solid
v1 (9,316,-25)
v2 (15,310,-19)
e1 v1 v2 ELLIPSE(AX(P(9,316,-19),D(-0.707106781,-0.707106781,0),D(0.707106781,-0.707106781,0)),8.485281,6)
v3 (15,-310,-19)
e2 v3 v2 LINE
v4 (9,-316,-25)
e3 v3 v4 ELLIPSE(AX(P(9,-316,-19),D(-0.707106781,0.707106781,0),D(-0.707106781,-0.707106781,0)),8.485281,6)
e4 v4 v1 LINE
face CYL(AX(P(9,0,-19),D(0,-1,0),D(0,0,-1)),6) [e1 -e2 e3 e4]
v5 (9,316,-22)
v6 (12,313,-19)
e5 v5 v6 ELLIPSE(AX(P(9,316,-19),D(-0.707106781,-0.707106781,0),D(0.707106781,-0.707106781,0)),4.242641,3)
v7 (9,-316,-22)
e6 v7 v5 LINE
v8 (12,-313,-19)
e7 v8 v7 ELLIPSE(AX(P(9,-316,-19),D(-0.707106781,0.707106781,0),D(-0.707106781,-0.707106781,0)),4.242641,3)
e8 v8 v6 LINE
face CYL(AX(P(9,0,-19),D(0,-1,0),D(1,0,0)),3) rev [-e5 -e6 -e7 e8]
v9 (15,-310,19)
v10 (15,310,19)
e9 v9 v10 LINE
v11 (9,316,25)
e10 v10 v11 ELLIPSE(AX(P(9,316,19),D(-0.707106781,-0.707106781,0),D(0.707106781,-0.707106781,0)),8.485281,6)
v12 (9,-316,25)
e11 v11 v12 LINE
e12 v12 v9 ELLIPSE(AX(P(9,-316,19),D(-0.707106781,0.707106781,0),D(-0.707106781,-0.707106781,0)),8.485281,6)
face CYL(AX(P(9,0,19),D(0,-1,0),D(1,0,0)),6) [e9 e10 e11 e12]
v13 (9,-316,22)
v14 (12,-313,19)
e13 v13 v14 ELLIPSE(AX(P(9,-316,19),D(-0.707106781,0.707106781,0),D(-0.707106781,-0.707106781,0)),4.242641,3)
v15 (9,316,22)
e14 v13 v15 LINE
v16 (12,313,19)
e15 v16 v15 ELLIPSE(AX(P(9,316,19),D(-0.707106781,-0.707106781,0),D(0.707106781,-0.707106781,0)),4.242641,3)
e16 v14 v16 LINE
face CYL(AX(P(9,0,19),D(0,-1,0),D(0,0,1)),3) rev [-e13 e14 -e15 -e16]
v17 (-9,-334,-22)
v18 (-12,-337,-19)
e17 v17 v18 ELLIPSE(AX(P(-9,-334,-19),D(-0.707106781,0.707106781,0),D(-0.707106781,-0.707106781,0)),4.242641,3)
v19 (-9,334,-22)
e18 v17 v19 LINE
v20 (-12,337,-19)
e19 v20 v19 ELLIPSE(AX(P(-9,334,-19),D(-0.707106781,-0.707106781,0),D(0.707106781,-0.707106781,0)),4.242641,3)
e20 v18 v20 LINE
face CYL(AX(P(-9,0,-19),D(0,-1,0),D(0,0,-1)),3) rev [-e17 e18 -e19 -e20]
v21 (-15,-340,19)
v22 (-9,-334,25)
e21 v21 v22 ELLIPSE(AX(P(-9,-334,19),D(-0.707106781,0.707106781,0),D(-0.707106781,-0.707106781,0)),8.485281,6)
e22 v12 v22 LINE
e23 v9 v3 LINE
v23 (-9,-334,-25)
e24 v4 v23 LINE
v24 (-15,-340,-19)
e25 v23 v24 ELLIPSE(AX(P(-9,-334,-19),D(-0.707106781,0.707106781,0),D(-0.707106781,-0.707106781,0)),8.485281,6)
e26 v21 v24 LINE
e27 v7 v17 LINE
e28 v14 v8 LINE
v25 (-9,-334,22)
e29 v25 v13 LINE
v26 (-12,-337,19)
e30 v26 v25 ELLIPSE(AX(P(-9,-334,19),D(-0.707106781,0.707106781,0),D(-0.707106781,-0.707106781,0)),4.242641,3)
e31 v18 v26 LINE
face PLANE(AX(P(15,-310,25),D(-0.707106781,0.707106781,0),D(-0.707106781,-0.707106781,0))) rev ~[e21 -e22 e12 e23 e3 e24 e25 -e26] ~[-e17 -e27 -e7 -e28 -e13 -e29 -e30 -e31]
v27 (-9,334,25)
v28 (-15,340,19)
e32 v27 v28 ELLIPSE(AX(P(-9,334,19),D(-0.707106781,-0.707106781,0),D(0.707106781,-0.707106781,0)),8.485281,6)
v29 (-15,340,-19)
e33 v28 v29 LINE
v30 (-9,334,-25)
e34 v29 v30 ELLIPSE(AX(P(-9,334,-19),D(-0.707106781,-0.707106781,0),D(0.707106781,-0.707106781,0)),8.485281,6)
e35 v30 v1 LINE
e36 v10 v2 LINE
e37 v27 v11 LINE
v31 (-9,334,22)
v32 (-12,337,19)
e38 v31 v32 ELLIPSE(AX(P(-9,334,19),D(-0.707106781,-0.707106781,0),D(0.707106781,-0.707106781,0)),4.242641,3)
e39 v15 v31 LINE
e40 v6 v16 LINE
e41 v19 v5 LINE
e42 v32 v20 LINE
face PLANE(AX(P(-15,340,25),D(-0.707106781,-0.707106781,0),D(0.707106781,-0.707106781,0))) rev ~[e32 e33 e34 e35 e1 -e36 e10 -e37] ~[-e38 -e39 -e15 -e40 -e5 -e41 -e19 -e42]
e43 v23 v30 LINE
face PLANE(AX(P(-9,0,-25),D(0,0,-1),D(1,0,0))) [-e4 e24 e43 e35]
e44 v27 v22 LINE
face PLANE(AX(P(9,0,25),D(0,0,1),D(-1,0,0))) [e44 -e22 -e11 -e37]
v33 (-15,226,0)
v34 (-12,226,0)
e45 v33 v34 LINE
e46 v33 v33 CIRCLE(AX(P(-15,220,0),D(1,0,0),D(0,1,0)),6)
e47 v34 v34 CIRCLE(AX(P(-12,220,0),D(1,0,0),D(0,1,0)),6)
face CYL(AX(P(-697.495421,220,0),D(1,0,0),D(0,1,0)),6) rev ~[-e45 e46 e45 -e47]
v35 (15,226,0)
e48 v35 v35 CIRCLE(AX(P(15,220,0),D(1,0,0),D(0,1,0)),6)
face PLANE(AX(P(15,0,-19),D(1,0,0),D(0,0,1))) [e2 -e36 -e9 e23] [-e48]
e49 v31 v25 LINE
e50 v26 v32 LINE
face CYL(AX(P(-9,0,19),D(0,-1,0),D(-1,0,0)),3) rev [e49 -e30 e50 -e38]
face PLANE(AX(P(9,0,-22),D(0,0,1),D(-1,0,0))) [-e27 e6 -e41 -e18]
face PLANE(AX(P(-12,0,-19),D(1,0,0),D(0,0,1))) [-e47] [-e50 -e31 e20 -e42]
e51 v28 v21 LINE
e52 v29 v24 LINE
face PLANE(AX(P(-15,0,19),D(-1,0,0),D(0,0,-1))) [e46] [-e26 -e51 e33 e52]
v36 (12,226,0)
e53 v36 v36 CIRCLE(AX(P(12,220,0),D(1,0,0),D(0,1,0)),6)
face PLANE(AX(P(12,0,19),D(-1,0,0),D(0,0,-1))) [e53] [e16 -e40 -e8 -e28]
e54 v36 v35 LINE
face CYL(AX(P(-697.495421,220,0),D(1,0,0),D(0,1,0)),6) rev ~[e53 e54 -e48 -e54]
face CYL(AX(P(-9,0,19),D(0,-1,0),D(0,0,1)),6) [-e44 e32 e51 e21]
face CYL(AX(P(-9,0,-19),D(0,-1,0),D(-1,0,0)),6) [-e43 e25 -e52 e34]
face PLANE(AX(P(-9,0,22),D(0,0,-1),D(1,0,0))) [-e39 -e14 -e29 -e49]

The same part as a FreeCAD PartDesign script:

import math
import FreeCAD as App
import Part
import Sketcher
Q = App.Units.Quantity


def add_polygon(sketch, points):
    """Adds a closed chain of lines whose ends are joined by coincident constraints."""
    first, n = sketch.GeometryCount, len(points)
    for a, b in zip(points, points[1:] + points[:1]):
        sketch.addGeometry(Part.LineSegment(App.Vector(*a, 0), App.Vector(*b, 0)), False)
    for i in range(n):
        sketch.addConstraint(Sketcher.Constraint("Coincident", first + i, 2, first + (i + 1) % n, 1))

doc = App.newDocument("Part")
params = doc.addObject("Spreadsheet::Sheet", "Params")
for row, (alias, value) in enumerate([
    ("sketch1_radius", "6 mm"),
    ("sketch1_radius2", "3 mm"),
    ("sketch1_width", "18 mm"),
    ("sketch1_height", "38 mm"),
    ("pad1_length", "680 mm"),
    ("sketch2_width", "30 mm"),
    ("sketch3_diameter", "12 mm"),
    ("hole_diameter", "12 mm"),
], start=1):
    params.set(f"A{row}", alias)
    params.set(f"B{row}", "=" + value)
    params.setAlias(f"B{row}", alias)

body = doc.addObject("PartDesign::Body", "Body")

sketch1 = doc.addObject("Sketcher::SketchObject", "Sketch")
body.addObject(sketch1)
sketch1.AttachmentSupport = (doc.XZ_Plane, [""])
sketch1.MapMode = "FlatFace"
sketch1.addGeometry(Part.ArcOfCircle(Part.Circle(App.Vector(9, 19, 0), App.Vector(0, 0, 1), 6), math.radians(0), math.radians(90)), False)
sketch1.addGeometry(Part.LineSegment(App.Vector(9, 25, 0), App.Vector(-9, 25, 0)), False)
sketch1.addGeometry(Part.ArcOfCircle(Part.Circle(App.Vector(-9, 19, 0), App.Vector(0, 0, 1), 6), math.radians(90), math.radians(180)), False)
sketch1.addGeometry(Part.LineSegment(App.Vector(-15, 19, 0), App.Vector(-15, -19, 0)), False)
sketch1.addGeometry(Part.ArcOfCircle(Part.Circle(App.Vector(-9, -19, 0), App.Vector(0, 0, 1), 6), math.radians(180), math.radians(270)), False)
sketch1.addGeometry(Part.LineSegment(App.Vector(-9, -25, 0), App.Vector(9, -25, 0)), False)
sketch1.addGeometry(Part.ArcOfCircle(Part.Circle(App.Vector(9, -19, 0), App.Vector(0, 0, 1), 6), math.radians(-90), math.radians(0)), False)
sketch1.addGeometry(Part.LineSegment(App.Vector(15, -19, 0), App.Vector(15, 19, 0)), False)
sketch1.addGeometry(Part.ArcOfCircle(Part.Circle(App.Vector(-9, 19, 0), App.Vector(0, 0, 1), 3), math.radians(90), math.radians(180)), False)
sketch1.addGeometry(Part.LineSegment(App.Vector(-9, 22, 0), App.Vector(9, 22, 0)), False)
sketch1.addGeometry(Part.ArcOfCircle(Part.Circle(App.Vector(9, 19, 0), App.Vector(0, 0, 1), 3), math.radians(0), math.radians(90)), False)
sketch1.addGeometry(Part.LineSegment(App.Vector(12, 19, 0), App.Vector(12, -19, 0)), False)
sketch1.addGeometry(Part.ArcOfCircle(Part.Circle(App.Vector(9, -19, 0), App.Vector(0, 0, 1), 3), math.radians(-90), math.radians(0)), False)
sketch1.addGeometry(Part.LineSegment(App.Vector(9, -22, 0), App.Vector(-9, -22, 0)), False)
sketch1.addGeometry(Part.ArcOfCircle(Part.Circle(App.Vector(-9, -19, 0), App.Vector(0, 0, 1), 3), math.radians(180), math.radians(270)), False)
sketch1.addGeometry(Part.LineSegment(App.Vector(-12, -19, 0), App.Vector(-12, 19, 0)), False)
sketch1.addConstraint(Sketcher.Constraint("Tangent", 0, 2, 1, 1))
sketch1.addConstraint(Sketcher.Constraint("Tangent", 1, 2, 2, 1))
sketch1.addConstraint(Sketcher.Constraint("Tangent", 2, 2, 3, 1))
sketch1.addConstraint(Sketcher.Constraint("Tangent", 3, 2, 4, 1))
sketch1.addConstraint(Sketcher.Constraint("Tangent", 4, 2, 5, 1))
sketch1.addConstraint(Sketcher.Constraint("Tangent", 5, 2, 6, 1))
sketch1.addConstraint(Sketcher.Constraint("Tangent", 6, 2, 7, 1))
sketch1.addConstraint(Sketcher.Constraint("Tangent", 7, 2, 0, 1))
sketch1.addConstraint(Sketcher.Constraint("Tangent", 8, 1, 9, 1))
sketch1.addConstraint(Sketcher.Constraint("Tangent", 9, 2, 10, 2))
sketch1.addConstraint(Sketcher.Constraint("Tangent", 10, 1, 11, 1))
sketch1.addConstraint(Sketcher.Constraint("Tangent", 11, 2, 12, 2))
sketch1.addConstraint(Sketcher.Constraint("Tangent", 12, 1, 13, 1))
sketch1.addConstraint(Sketcher.Constraint("Tangent", 13, 2, 14, 2))
sketch1.addConstraint(Sketcher.Constraint("Tangent", 14, 1, 15, 1))
sketch1.addConstraint(Sketcher.Constraint("Tangent", 15, 2, 8, 2))
sketch1.addConstraint(Sketcher.Constraint("Horizontal", 1))
sketch1.addConstraint(Sketcher.Constraint("Vertical", 3))
sketch1.addConstraint(Sketcher.Constraint("Horizontal", 5))
sketch1.addConstraint(Sketcher.Constraint("Vertical", 7))
sketch1.addConstraint(Sketcher.Constraint("Horizontal", 9))
sketch1.addConstraint(Sketcher.Constraint("Vertical", 11))
sketch1.addConstraint(Sketcher.Constraint("Horizontal", 13))
sketch1.addConstraint(Sketcher.Constraint("Vertical", 15))
sketch1.addConstraint(Sketcher.Constraint("Coincident", 8, 3, 2, 3))
sketch1.addConstraint(Sketcher.Constraint("Coincident", 10, 3, 0, 3))
sketch1.addConstraint(Sketcher.Constraint("Coincident", 12, 3, 6, 3))
sketch1.addConstraint(Sketcher.Constraint("Equal", 0, 2))
sketch1.addConstraint(Sketcher.Constraint("Equal", 2, 4))
sketch1.addConstraint(Sketcher.Constraint("Equal", 4, 6))
sketch1.addConstraint(Sketcher.Constraint("Equal", 12, 14))
sketch1.addConstraint(Sketcher.Constraint("Symmetric", 0, 3, 4, 3, -1, 1))
sketch1.addConstraint(Sketcher.Constraint("Radius", 0, Q("6 mm")))
sketch1.addConstraint(Sketcher.Constraint("Radius", 8, Q("3 mm")))
sketch1.addConstraint(Sketcher.Constraint("DistanceX", 1, 2, 1, 1, Q("18 mm")))
sketch1.addConstraint(Sketcher.Constraint("DistanceY", 3, 2, 3, 1, Q("38 mm")))
sketch1.setExpression("Constraints[32]", "Params.sketch1_radius")
sketch1.setExpression("Constraints[33]", "Params.sketch1_radius2")
sketch1.setExpression("Constraints[34]", "Params.sketch1_width")
sketch1.setExpression("Constraints[35]", "Params.sketch1_height")
pad1 = doc.addObject("PartDesign::Pad", "Pad")
body.addObject(pad1)
pad1.Profile = sketch1
pad1.setExpression("Length", "Params.pad1_length")
pad1.Midplane = True

sketch2 = doc.addObject("Sketcher::SketchObject", "Sketch001")
body.addObject(sketch2)
sketch2.AttachmentSupport = (doc.XY_Plane, [""])
sketch2.MapMode = "FlatFace"
sketch2.AttachmentOffset = App.Placement(App.Vector(0, 0, 25), App.Rotation())
add_polygon(sketch2, [(-15, -340), (15, -340), (15, -310)])
add_polygon(sketch2, [(-15, 340), (15, 310), (15, 340)])
sketch2.addConstraint(Sketcher.Constraint("Horizontal", 0))
sketch2.addConstraint(Sketcher.Constraint("Vertical", 1))
sketch2.addConstraint(Sketcher.Constraint("Vertical", 4))
sketch2.addConstraint(Sketcher.Constraint("Horizontal", 5))
sketch2.addConstraint(Sketcher.Constraint("Symmetric", 2, 2, 4, 2, -1, 1))
sketch2.addConstraint(Sketcher.Constraint("Symmetric", 1, 2, 3, 2, -1))
sketch2.addConstraint(Sketcher.Constraint("Perpendicular", 2, 3))
sketch2.addConstraint(Sketcher.Constraint("Vertical", 2, 2, 5, 2))
sketch2.addConstraint(Sketcher.Constraint("DistanceX", 0, 1, 0, 2, Q("30 mm")))
sketch2.addConstraint(Sketcher.Constraint("DistanceY", 0, 2, -1, 1, Q("340 mm")))
sketch2.setExpression("Constraints[14]", "Params.sketch2_width")
pocket1 = doc.addObject("PartDesign::Pocket", "Pocket")
body.addObject(pocket1)
pocket1.Profile = sketch2
pocket1.Type = "ThroughAll"

sketch3 = doc.addObject("Sketcher::SketchObject", "Sketch002")
body.addObject(sketch3)
sketch3.AttachmentSupport = (doc.YZ_Plane, [""])
sketch3.MapMode = "FlatFace"
sketch3.AttachmentOffset = App.Placement(App.Vector(0, 0, -15), App.Rotation())
sketch3.addGeometry(Part.Circle(App.Vector(220, 0, 0), App.Vector(0, 0, 1), 6), False)
sketch3.addConstraint(Sketcher.Constraint("PointOnObject", 0, 3, -1))
sketch3.addConstraint(Sketcher.Constraint("Diameter", 0, Q("12 mm")))
sketch3.addConstraint(Sketcher.Constraint("DistanceX", -1, 1, 0, 3, Q("220 mm")))
sketch3.setExpression("Constraints[1]", "Params.sketch3_diameter")
doc.recompute()
hole = doc.addObject("PartDesign::Hole", "Hole")
body.addObject(hole)
hole.Profile = sketch3
hole.ThreadType = "None"
hole.setExpression("Diameter", "Params.hole_diameter")
hole.DepthType = "ThroughAll"
hole.Reversed = True

doc.recompute()
